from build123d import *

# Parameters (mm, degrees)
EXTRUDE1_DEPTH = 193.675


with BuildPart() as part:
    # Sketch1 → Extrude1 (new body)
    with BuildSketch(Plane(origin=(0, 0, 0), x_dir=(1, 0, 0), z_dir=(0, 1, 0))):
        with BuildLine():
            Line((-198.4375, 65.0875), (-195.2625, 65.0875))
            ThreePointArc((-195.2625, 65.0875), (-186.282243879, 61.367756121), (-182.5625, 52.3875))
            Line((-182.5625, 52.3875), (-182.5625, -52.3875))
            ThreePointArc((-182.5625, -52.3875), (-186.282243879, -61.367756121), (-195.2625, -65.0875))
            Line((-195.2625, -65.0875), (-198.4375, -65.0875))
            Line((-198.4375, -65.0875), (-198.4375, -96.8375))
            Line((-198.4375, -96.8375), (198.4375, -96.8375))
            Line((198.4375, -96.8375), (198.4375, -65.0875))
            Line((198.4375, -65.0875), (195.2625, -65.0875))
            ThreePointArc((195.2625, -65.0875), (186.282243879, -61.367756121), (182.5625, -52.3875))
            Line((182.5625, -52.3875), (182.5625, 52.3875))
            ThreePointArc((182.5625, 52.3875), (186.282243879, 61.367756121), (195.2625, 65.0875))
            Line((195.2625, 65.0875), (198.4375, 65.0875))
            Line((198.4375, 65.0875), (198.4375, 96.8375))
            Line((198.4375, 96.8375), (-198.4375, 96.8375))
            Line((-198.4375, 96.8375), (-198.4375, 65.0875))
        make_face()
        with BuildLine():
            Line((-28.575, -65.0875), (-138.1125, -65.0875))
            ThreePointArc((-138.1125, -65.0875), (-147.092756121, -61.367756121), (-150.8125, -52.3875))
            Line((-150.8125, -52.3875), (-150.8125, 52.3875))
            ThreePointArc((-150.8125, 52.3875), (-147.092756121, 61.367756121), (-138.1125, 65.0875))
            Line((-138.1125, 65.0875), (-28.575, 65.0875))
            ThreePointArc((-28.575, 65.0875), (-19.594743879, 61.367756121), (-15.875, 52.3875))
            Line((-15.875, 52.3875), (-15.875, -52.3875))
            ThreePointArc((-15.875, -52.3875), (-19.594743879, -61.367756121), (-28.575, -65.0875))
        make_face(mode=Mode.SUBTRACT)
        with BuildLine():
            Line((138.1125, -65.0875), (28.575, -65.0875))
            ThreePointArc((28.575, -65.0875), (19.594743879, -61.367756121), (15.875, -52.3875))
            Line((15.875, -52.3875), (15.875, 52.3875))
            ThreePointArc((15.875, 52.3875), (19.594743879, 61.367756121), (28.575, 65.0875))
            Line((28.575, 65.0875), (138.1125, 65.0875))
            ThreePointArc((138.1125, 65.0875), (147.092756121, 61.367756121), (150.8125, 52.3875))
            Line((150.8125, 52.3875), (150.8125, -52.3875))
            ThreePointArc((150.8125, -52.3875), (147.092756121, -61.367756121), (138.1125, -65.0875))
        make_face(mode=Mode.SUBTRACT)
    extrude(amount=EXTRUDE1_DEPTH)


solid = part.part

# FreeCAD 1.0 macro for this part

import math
import FreeCAD as App
import Part
import Sketcher

V = App.Vector
Q = App.Units.Quantity

doc = App.newDocument("Part")
params = doc.addObject("Spreadsheet::Sheet", "Params")
for row, (alias, value) in enumerate([
    ("sketch1_radius", "0.5 in"),
    ("sketch1_height", "1.25 in"),
    ("sketch1_width", "0.125 in"),
    ("sketch1_width2", "15.625 in"),
    ("sketch1_width3", "4.3125 in"),
    ("pad1_length", "7.625 in"),
], start=1):
    params.set(f"A{row}", alias)
    params.set(f"B{row}", "=" + value)
    params.setAlias(f"B{row}", alias)

body = doc.addObject("PartDesign::Body", "Body")

# Sketch on XZ plane
sketch1 = doc.addObject("Sketcher::SketchObject", "Sketch")
body.addObject(sketch1)
sketch1.AttachmentSupport = (doc.XZ_Plane, [""])
sketch1.MapMode = "FlatFace"
sketch1.addGeometry([
    Part.LineSegment(V(-198.4, -65.1, 0), V(-195.3, -65.1, 0)),  # 0
    Part.ArcOfCircle(Part.Circle(V(-195.3, -52.4, 0), V(0, 0, 1), 12.7), math.radians(-90), math.radians(0)),  # 1
    Part.LineSegment(V(-182.6, -52.4, 0), V(-182.6, 52.4, 0)),  # 2
    Part.ArcOfCircle(Part.Circle(V(-195.3, 52.4, 0), V(0, 0, 1), 12.7), math.radians(0), math.radians(90)),  # 3
    Part.LineSegment(V(-195.3, 65.1, 0), V(-198.4, 65.1, 0)),  # 4
    Part.LineSegment(V(-198.4, 65.1, 0), V(-198.4, 96.8, 0)),  # 5
    Part.LineSegment(V(-198.4, 96.8, 0), V(198.4, 96.8, 0)),  # 6
    Part.LineSegment(V(198.4, 96.8, 0), V(198.4, 65.1, 0)),  # 7
    Part.LineSegment(V(198.4, 65.1, 0), V(195.3, 65.1, 0)),  # 8
    Part.ArcOfCircle(Part.Circle(V(195.3, 52.4, 0), V(0, 0, 1), 12.7), math.radians(90), math.radians(180)),  # 9
    Part.LineSegment(V(182.6, 52.4, 0), V(182.6, -52.4, 0)),  # 10
    Part.ArcOfCircle(Part.Circle(V(195.3, -52.4, 0), V(0, 0, 1), 12.7), math.radians(180), math.radians(270)),  # 11
    Part.LineSegment(V(195.3, -65.1, 0), V(198.4, -65.1, 0)),  # 12
    Part.LineSegment(V(198.4, -65.1, 0), V(198.4, -96.8, 0)),  # 13
    Part.LineSegment(V(198.4, -96.8, 0), V(-198.4, -96.8, 0)),  # 14
    Part.LineSegment(V(-198.4, -96.8, 0), V(-198.4, -65.1, 0)),  # 15
    Part.ArcOfCircle(Part.Circle(V(-28.6, 52.4, 0), V(0, 0, 1), 12.7), math.radians(0), math.radians(90)),  # 16
    Part.LineSegment(V(-28.6, 65.1, 0), V(-138.1, 65.1, 0)),  # 17
    Part.ArcOfCircle(Part.Circle(V(-138.1, 52.4, 0), V(0, 0, 1), 12.7), math.radians(90), math.radians(180)),  # 18
    Part.LineSegment(V(-150.8, 52.4, 0), V(-150.8, -52.4, 0)),  # 19
    Part.ArcOfCircle(Part.Circle(V(-138.1, -52.4, 0), V(0, 0, 1), 12.7), math.radians(180), math.radians(270)),  # 20
    Part.LineSegment(V(-138.1, -65.1, 0), V(-28.6, -65.1, 0)),  # 21
    Part.ArcOfCircle(Part.Circle(V(-28.6, -52.4, 0), V(0, 0, 1), 12.7), math.radians(-90), math.radians(0)),  # 22
    Part.LineSegment(V(-15.9, -52.4, 0), V(-15.9, 52.4, 0)),  # 23
    Part.ArcOfCircle(Part.Circle(V(138.1, 52.4, 0), V(0, 0, 1), 12.7), math.radians(0), math.radians(90)),  # 24
    Part.LineSegment(V(138.1, 65.1, 0), V(28.6, 65.1, 0)),  # 25
    Part.ArcOfCircle(Part.Circle(V(28.6, 52.4, 0), V(0, 0, 1), 12.7), math.radians(90), math.radians(180)),  # 26
    Part.LineSegment(V(15.9, 52.4, 0), V(15.9, -52.4, 0)),  # 27
    Part.ArcOfCircle(Part.Circle(V(28.6, -52.4, 0), V(0, 0, 1), 12.7), math.radians(180), math.radians(270)),  # 28
    Part.LineSegment(V(28.6, -65.1, 0), V(138.1, -65.1, 0)),  # 29
    Part.ArcOfCircle(Part.Circle(V(138.1, -52.4, 0), V(0, 0, 1), 12.7), math.radians(-90), math.radians(0)),  # 30
    Part.LineSegment(V(150.8, -52.4, 0), V(150.8, 52.4, 0)),  # 31
], False)
sketch1.addConstraint([
    Sketcher.Constraint("Tangent", 0, 2, 1, 1),
    Sketcher.Constraint("Tangent", 1, 2, 2, 1),
    Sketcher.Constraint("Tangent", 2, 2, 3, 1),
    Sketcher.Constraint("Tangent", 3, 2, 4, 1),
    Sketcher.Constraint("Coincident", 4, 2, 5, 1),
    Sketcher.Constraint("Coincident", 5, 2, 6, 1),
    Sketcher.Constraint("Coincident", 6, 2, 7, 1),
    Sketcher.Constraint("Coincident", 7, 2, 8, 1),
    Sketcher.Constraint("Tangent", 8, 2, 9, 1),
    Sketcher.Constraint("Tangent", 9, 2, 10, 1),
    Sketcher.Constraint("Tangent", 10, 2, 11, 1),
    Sketcher.Constraint("Tangent", 11, 2, 12, 1),
    Sketcher.Constraint("Coincident", 12, 2, 13, 1),
    Sketcher.Constraint("Coincident", 13, 2, 14, 1),
    Sketcher.Constraint("Coincident", 14, 2, 15, 1),
    Sketcher.Constraint("Coincident", 15, 2, 0, 1),
    Sketcher.Constraint("Tangent", 16, 2, 17, 1),
    Sketcher.Constraint("Tangent", 17, 2, 18, 1),
    Sketcher.Constraint("Tangent", 18, 2, 19, 1),
    Sketcher.Constraint("Tangent", 19, 2, 20, 1),
    Sketcher.Constraint("Tangent", 20, 2, 21, 1),
    Sketcher.Constraint("Tangent", 21, 2, 22, 1),
    Sketcher.Constraint("Tangent", 22, 2, 23, 1),
    Sketcher.Constraint("Tangent", 23, 2, 16, 1),
    Sketcher.Constraint("Tangent", 24, 2, 25, 1),
    Sketcher.Constraint("Tangent", 25, 2, 26, 1),
    Sketcher.Constraint("Tangent", 26, 2, 27, 1),
    Sketcher.Constraint("Tangent", 27, 2, 28, 1),
    Sketcher.Constraint("Tangent", 28, 2, 29, 1),
    Sketcher.Constraint("Tangent", 29, 2, 30, 1),
    Sketcher.Constraint("Tangent", 30, 2, 31, 1),
    Sketcher.Constraint("Tangent", 31, 2, 24, 1),
    Sketcher.Constraint("Horizontal", 0),
    Sketcher.Constraint("Vertical", 2),
    Sketcher.Constraint("Horizontal", 4),
    Sketcher.Constraint("Vertical", 5),
    Sketcher.Constraint("Horizontal", 6),
    Sketcher.Constraint("Vertical", 7),
    Sketcher.Constraint("Horizontal", 8),
    Sketcher.Constraint("Vertical", 10),
    Sketcher.Constraint("Horizontal", 12),
    Sketcher.Constraint("Vertical", 13),
    Sketcher.Constraint("Horizontal", 14),
    Sketcher.Constraint("Vertical", 15),
    Sketcher.Constraint("Horizontal", 17),
    Sketcher.Constraint("Vertical", 19),
    Sketcher.Constraint("Horizontal", 21),
    Sketcher.Constraint("Vertical", 23),
    Sketcher.Constraint("Horizontal", 25),
    Sketcher.Constraint("Vertical", 27),
    Sketcher.Constraint("Horizontal", 29),
    Sketcher.Constraint("Vertical", 31),
    Sketcher.Constraint("Equal", 1, 3),
    Sketcher.Constraint("Equal", 3, 9),
    Sketcher.Constraint("Equal", 9, 11),
    Sketcher.Constraint("Equal", 11, 16),
    Sketcher.Constraint("Equal", 16, 18),
    Sketcher.Constraint("Equal", 18, 20),
    Sketcher.Constraint("Equal", 20, 22),
    Sketcher.Constraint("Equal", 22, 24),
    Sketcher.Constraint("Equal", 24, 26),
    Sketcher.Constraint("Equal", 26, 28),
    Sketcher.Constraint("Equal", 28, 30),
    Sketcher.Constraint("Symmetric", 1, 3, 9, 3, -1, 1),
    Sketcher.Constraint("Symmetric", 20, 3, 24, 3, -1, 1),
    Sketcher.Constraint("Symmetric", 16, 3, 28, 3, -1, 1),
    Sketcher.Constraint("Symmetric", 4, 2, 12, 2, -1, 1),
    Sketcher.Constraint("Symmetric", 6, 2, 14, 2, -1, 1),
    Sketcher.Constraint("Symmetric", 4, 2, 7, 2, -2),
    Sketcher.Constraint("Horizontal", 9, 3, 16, 3),
    Sketcher.Constraint("Horizontal", 11, 3, 20, 3),
    Sketcher.Constraint("Radius", 1, Q("0.5 in")),
    Sketcher.Constraint("DistanceY", 5, 1, 5, 2, Q("1.25 in")),
    Sketcher.Constraint("DistanceX", 0, 1, 0, 2, Q("0.125 in")),
    Sketcher.Constraint("DistanceX", 6, 1, 6, 2, Q("15.625 in")),
    Sketcher.Constraint("DistanceX", 17, 2, 17, 1, Q("4.3125 in")),
    Sketcher.Constraint("DistanceY", 2, 1, 2, 2, Q("4.125 in")),
    Sketcher.Constraint("DistanceX", 3, 3, 18, 3, Q("2.25 in")),
])
sketch1.setExpression("Constraints[71]", "Params.sketch1_radius")
sketch1.setExpression("Constraints[72]", "Params.sketch1_height")
sketch1.setExpression("Constraints[73]", "Params.sketch1_width")
sketch1.setExpression("Constraints[74]", "Params.sketch1_width2")
sketch1.setExpression("Constraints[75]", "Params.sketch1_width3")
pad1 = doc.addObject("PartDesign::Pad", "Pad")
body.addObject(pad1)
pad1.Profile = sketch1
pad1.setExpression("Length", "Params.pad1_length")
pad1.Reversed = True

doc.recompute()
